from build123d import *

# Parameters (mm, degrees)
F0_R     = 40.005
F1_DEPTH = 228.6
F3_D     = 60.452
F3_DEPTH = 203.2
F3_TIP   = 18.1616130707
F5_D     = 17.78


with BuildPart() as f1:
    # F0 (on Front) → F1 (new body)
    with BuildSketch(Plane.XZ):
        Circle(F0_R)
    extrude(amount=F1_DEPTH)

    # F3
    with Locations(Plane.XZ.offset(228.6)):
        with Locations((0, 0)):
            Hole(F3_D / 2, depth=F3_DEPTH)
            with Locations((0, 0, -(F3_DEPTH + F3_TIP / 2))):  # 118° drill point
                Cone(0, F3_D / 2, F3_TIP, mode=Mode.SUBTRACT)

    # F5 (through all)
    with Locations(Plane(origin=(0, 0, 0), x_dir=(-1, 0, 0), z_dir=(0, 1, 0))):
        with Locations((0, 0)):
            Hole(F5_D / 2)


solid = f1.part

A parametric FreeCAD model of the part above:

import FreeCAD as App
import Part
import Sketcher

V = App.Vector
Q = App.Units.Quantity

doc = App.newDocument("Part")
body = doc.addObject("PartDesign::Body", "Body")

# Sketch on XZ plane
sketch1 = body.newObject("Sketcher::SketchObject", "Sketch")
sketch1.AttachmentSupport = (doc.getObject("XZ_Plane"), [""])
sketch1.MapMode = "FlatFace"
sketch1.addGeometry(Part.Circle(V(0, 0, 0), V(0, 0, 1), 40), False)
sketch1.addConstraint([
    Sketcher.Constraint("Coincident", 0, 3, -1, 1),
    Sketcher.Constraint("Diameter", 0, Q("3.15 in")),
])
pad1 = body.newObject("PartDesign::Pad", "Pad")
pad1.Profile = sketch1
pad1.Length = Q("9 in")

# Sketch on XZ plane
sketch2 = body.newObject("Sketcher::SketchObject", "Sketch001")
sketch2.AttachmentSupport = (doc.getObject("XZ_Plane"), [""])
sketch2.MapMode = "FlatFace"
sketch2.AttachmentOffset = App.Placement(V(0, 0, 9 * 25.4), App.Rotation())
sketch2.addGeometry(Part.Circle(V(0, 0, 0), V(0, 0, 1), 30), False)
sketch2.addConstraint([
    Sketcher.Constraint("Coincident", 0, 3, -1, 1),
    Sketcher.Constraint("Diameter", 0, Q("2.38 in")),
])
doc.recompute()
hole = body.newObject("PartDesign::Hole", "Hole")
hole.Profile = sketch2
hole.ThreadType = "None"
hole.Diameter = Q("2.38 in")
hole.DepthType = "Dimension"
hole.Depth = Q("8 in")
hole.DrillPoint = "Angled"
hole.DrillPointAngle = 118

# Sketch on XZ plane
sketch3 = body.newObject("Sketcher::SketchObject", "Sketch002")
sketch3.AttachmentSupport = (doc.getObject("XZ_Plane"), [""])
sketch3.MapMode = "FlatFace"
sketch3.addGeometry(Part.Circle(V(0, 0, 0), V(0, 0, 1), 9), False)
sketch3.addConstraint([
    Sketcher.Constraint("Coincident", 0, 3, -1, 1),
    Sketcher.Constraint("Diameter", 0, Q("0.7 in")),
])
doc.recompute()
hole2 = body.newObject("PartDesign::Hole", "Hole001")
hole2.Profile = sketch3
hole2.ThreadType = "None"
hole2.Diameter = Q("0.7 in")
hole2.DepthType = "ThroughAll"
hole2.Reversed = True

doc.recompute()
